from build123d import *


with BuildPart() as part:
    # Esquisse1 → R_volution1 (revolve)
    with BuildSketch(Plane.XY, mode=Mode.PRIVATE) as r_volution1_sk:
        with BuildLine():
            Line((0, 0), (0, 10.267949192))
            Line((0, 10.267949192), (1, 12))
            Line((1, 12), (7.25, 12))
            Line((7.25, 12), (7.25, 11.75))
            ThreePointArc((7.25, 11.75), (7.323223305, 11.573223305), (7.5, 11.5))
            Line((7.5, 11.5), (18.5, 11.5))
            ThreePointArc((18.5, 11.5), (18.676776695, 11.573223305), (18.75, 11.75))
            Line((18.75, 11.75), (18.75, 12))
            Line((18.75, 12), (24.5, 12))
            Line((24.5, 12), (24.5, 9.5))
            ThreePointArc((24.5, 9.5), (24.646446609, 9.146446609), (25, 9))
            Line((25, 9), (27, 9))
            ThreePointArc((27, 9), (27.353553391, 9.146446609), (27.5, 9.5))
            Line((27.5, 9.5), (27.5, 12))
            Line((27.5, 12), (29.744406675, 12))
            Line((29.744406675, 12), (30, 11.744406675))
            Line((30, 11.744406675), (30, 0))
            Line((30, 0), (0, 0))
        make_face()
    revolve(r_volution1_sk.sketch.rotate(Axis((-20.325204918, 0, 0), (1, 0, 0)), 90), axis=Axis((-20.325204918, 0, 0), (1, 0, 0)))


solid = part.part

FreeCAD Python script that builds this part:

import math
import FreeCAD as App
import Part
import Sketcher
from FreeCAD import Vector
Q = App.Units.Quantity

doc = App.newDocument("Part")
params = doc.addObject("Spreadsheet::Sheet", "Params")
for row, (alias, value) in enumerate([
    ("sketch1_radius", "0.5 mm"),
    ("sketch1_width", "30 mm"),
    ("sketch1_width2", "2 mm"),
    ("sketch1_width3", "11 mm"),
    ("sketch1_radius2", "0.25 mm"),
    ("revolution_angle", "360 deg"),
], start=1):
    params.set(f"A{row}", alias)
    params.set(f"B{row}", "=" + value)
    params.setAlias(f"B{row}", alias)

body = doc.addObject("PartDesign::Body", "Body")

# Sketch on XY plane
sketch1 = doc.addObject("Sketcher::SketchObject", "Sketch")
body.addObject(sketch1)
sketch1.AttachmentSupport = (doc.XY_Plane, [""])
sketch1.MapMode = "FlatFace"
sketch1.addGeometry(Part.LineSegment(Vector(0, 10.27, 0), Vector(0, 0, 0)), False)
sketch1.addGeometry(Part.LineSegment(Vector(0, 0, 0), Vector(30, 0, 0)), False)
sketch1.addGeometry(Part.LineSegment(Vector(30, 0, 0), Vector(30, 11.74, 0)), False)
sketch1.addGeometry(Part.LineSegment(Vector(30, 11.74, 0), Vector(29.74, 12, 0)), False)
sketch1.addGeometry(Part.LineSegment(Vector(29.74, 12, 0), Vector(27.5, 12, 0)), False)
sketch1.addGeometry(Part.LineSegment(Vector(27.5, 12, 0), Vector(27.5, 9.5, 0)), False)
sketch1.addGeometry(Part.ArcOfCircle(Part.Circle(Vector(27, 9.5, 0), Vector(0, 0, 1), 0.5), math.radians(-90), math.radians(0)), False)
sketch1.addGeometry(Part.LineSegment(Vector(27, 9, 0), Vector(25, 9, 0)), False)
sketch1.addGeometry(Part.ArcOfCircle(Part.Circle(Vector(25, 9.5, 0), Vector(0, 0, 1), 0.5), math.radians(180), math.radians(270)), False)
sketch1.addGeometry(Part.LineSegment(Vector(24.5, 9.5, 0), Vector(24.5, 12, 0)), False)
sketch1.addGeometry(Part.LineSegment(Vector(24.5, 12, 0), Vector(18.75, 12, 0)), False)
sketch1.addGeometry(Part.LineSegment(Vector(18.75, 12, 0), Vector(18.75, 11.75, 0)), False)
sketch1.addGeometry(Part.ArcOfCircle(Part.Circle(Vector(18.5, 11.75, 0), Vector(0, 0, 1), 0.25), math.radians(-90), math.radians(0)), False)
sketch1.addGeometry(Part.LineSegment(Vector(18.5, 11.5, 0), Vector(7.5, 11.5, 0)), False)
sketch1.addGeometry(Part.ArcOfCircle(Part.Circle(Vector(7.5, 11.75, 0), Vector(0, 0, 1), 0.25), math.radians(-180), math.radians(-90)), False)
sketch1.addGeometry(Part.LineSegment(Vector(7.25, 11.75, 0), Vector(7.25, 12, 0)), False)
sketch1.addGeometry(Part.LineSegment(Vector(7.25, 12, 0), Vector(1, 12, 0)), False)
sketch1.addGeometry(Part.LineSegment(Vector(1, 12, 0), Vector(0, 10.27, 0)), False)
sketch1.addConstraint(Sketcher.Constraint("Coincident", 0, 2, 1, 1))
sketch1.addConstraint(Sketcher.Constraint("Coincident", 1, 2, 2, 1))
sketch1.addConstraint(Sketcher.Constraint("Coincident", 2, 2, 3, 1))
sketch1.addConstraint(Sketcher.Constraint("Coincident", 3, 2, 4, 1))
sketch1.addConstraint(Sketcher.Constraint("Coincident", 4, 2, 5, 1))
sketch1.addConstraint(Sketcher.Constraint("Tangent", 5, 2, 6, 2))
sketch1.addConstraint(Sketcher.Constraint("Tangent", 6, 1, 7, 1))
sketch1.addConstraint(Sketcher.Constraint("Tangent", 7, 2, 8, 2))
sketch1.addConstraint(Sketcher.Constraint("Tangent", 8, 1, 9, 1))
sketch1.addConstraint(Sketcher.Constraint("Coincident", 9, 2, 10, 1))
sketch1.addConstraint(Sketcher.Constraint("Coincident", 10, 2, 11, 1))
sketch1.addConstraint(Sketcher.Constraint("Tangent", 11, 2, 12, 2))
sketch1.addConstraint(Sketcher.Constraint("Tangent", 12, 1, 13, 1))
sketch1.addConstraint(Sketcher.Constraint("Tangent", 13, 2, 14, 2))
sketch1.addConstraint(Sketcher.Constraint("Tangent", 14, 1, 15, 1))
sketch1.addConstraint(Sketcher.Constraint("Coincident", 15, 2, 16, 1))
sketch1.addConstraint(Sketcher.Constraint("Coincident", 16, 2, 17, 1))
sketch1.addConstraint(Sketcher.Constraint("Coincident", 17, 2, 0, 1))
sketch1.addConstraint(Sketcher.Constraint("Vertical", 0))
sketch1.addConstraint(Sketcher.Constraint("Horizontal", 1))
sketch1.addConstraint(Sketcher.Constraint("Vertical", 2))
sketch1.addConstraint(Sketcher.Constraint("Horizontal", 4))
sketch1.addConstraint(Sketcher.Constraint("Vertical", 5))
sketch1.addConstraint(Sketcher.Constraint("Horizontal", 7))
sketch1.addConstraint(Sketcher.Constraint("Vertical", 9))
sketch1.addConstraint(Sketcher.Constraint("Horizontal", 10))
sketch1.addConstraint(Sketcher.Constraint("Vertical", 11))
sketch1.addConstraint(Sketcher.Constraint("Horizontal", 13))
sketch1.addConstraint(Sketcher.Constraint("Vertical", 15))
sketch1.addConstraint(Sketcher.Constraint("Horizontal", 16))
sketch1.addConstraint(Sketcher.Constraint("Coincident", 0, 2, -1, 1))
sketch1.addConstraint(Sketcher.Constraint("Equal", 6, 8))
sketch1.addConstraint(Sketcher.Constraint("Equal", 12, 14))
sketch1.addConstraint(Sketcher.Constraint("Horizontal", 4, 2, 9, 2))
sketch1.addConstraint(Sketcher.Constraint("Horizontal", 10, 2, 15, 2))
sketch1.addConstraint(Sketcher.Constraint("Radius", 6, Q("0.5 mm")))
sketch1.addConstraint(Sketcher.Constraint("DistanceX", 1, 1, 1, 2, Q("30 mm")))
sketch1.addConstraint(Sketcher.Constraint("DistanceX", 7, 2, 7, 1, Q("2 mm")))
sketch1.addConstraint(Sketcher.Constraint("DistanceX", 13, 2, 13, 1, Q("11 mm")))
sketch1.addConstraint(Sketcher.Constraint("Angle", 3, Q("135 deg")))
sketch1.addConstraint(Sketcher.Constraint("Angle", 17, Q("-120 deg")))
sketch1.addConstraint(Sketcher.Constraint("Radius", 12, Q("0.25 mm")))
sketch1.addConstraint(Sketcher.Constraint("Distance", 17, Q("2 mm")))
sketch1.addConstraint(Sketcher.Constraint("DistanceY", 5, 2, 5, 1, Q("2.5 mm")))
sketch1.addConstraint(Sketcher.Constraint("DistanceX", -1, 1, 6, 3, Q("27 mm")))
sketch1.addConstraint(Sketcher.Constraint("DistanceY", -1, 1, 3, 2, Q("12 mm")))
sketch1.addConstraint(Sketcher.Constraint("DistanceX", 12, 3, 4, 2, Q("9 mm")))
sketch1.addConstraint(Sketcher.Constraint("DistanceY", 8, 1, 12, 1, Q("2 mm")))
sketch1.addConstraint(Sketcher.Constraint("DistanceX", 4, 2, 4, 1, Q("2.244407 mm")))
sketch1.setExpression("Constraints[35]", "Params.sketch1_radius")
sketch1.setExpression("Constraints[36]", "Params.sketch1_width")
sketch1.setExpression("Constraints[37]", "Params.sketch1_width2")
sketch1.setExpression("Constraints[38]", "Params.sketch1_width3")
sketch1.setExpression("Constraints[41]", "Params.sketch1_radius2")
revolution = doc.addObject("PartDesign::Revolution", "Revolution")
body.addObject(revolution)
revolution.Profile = sketch1
revolution.ReferenceAxis = (sketch1, ["H_Axis"])
revolution.setExpression("Angle", "Params.revolution_angle")

doc.recompute()
